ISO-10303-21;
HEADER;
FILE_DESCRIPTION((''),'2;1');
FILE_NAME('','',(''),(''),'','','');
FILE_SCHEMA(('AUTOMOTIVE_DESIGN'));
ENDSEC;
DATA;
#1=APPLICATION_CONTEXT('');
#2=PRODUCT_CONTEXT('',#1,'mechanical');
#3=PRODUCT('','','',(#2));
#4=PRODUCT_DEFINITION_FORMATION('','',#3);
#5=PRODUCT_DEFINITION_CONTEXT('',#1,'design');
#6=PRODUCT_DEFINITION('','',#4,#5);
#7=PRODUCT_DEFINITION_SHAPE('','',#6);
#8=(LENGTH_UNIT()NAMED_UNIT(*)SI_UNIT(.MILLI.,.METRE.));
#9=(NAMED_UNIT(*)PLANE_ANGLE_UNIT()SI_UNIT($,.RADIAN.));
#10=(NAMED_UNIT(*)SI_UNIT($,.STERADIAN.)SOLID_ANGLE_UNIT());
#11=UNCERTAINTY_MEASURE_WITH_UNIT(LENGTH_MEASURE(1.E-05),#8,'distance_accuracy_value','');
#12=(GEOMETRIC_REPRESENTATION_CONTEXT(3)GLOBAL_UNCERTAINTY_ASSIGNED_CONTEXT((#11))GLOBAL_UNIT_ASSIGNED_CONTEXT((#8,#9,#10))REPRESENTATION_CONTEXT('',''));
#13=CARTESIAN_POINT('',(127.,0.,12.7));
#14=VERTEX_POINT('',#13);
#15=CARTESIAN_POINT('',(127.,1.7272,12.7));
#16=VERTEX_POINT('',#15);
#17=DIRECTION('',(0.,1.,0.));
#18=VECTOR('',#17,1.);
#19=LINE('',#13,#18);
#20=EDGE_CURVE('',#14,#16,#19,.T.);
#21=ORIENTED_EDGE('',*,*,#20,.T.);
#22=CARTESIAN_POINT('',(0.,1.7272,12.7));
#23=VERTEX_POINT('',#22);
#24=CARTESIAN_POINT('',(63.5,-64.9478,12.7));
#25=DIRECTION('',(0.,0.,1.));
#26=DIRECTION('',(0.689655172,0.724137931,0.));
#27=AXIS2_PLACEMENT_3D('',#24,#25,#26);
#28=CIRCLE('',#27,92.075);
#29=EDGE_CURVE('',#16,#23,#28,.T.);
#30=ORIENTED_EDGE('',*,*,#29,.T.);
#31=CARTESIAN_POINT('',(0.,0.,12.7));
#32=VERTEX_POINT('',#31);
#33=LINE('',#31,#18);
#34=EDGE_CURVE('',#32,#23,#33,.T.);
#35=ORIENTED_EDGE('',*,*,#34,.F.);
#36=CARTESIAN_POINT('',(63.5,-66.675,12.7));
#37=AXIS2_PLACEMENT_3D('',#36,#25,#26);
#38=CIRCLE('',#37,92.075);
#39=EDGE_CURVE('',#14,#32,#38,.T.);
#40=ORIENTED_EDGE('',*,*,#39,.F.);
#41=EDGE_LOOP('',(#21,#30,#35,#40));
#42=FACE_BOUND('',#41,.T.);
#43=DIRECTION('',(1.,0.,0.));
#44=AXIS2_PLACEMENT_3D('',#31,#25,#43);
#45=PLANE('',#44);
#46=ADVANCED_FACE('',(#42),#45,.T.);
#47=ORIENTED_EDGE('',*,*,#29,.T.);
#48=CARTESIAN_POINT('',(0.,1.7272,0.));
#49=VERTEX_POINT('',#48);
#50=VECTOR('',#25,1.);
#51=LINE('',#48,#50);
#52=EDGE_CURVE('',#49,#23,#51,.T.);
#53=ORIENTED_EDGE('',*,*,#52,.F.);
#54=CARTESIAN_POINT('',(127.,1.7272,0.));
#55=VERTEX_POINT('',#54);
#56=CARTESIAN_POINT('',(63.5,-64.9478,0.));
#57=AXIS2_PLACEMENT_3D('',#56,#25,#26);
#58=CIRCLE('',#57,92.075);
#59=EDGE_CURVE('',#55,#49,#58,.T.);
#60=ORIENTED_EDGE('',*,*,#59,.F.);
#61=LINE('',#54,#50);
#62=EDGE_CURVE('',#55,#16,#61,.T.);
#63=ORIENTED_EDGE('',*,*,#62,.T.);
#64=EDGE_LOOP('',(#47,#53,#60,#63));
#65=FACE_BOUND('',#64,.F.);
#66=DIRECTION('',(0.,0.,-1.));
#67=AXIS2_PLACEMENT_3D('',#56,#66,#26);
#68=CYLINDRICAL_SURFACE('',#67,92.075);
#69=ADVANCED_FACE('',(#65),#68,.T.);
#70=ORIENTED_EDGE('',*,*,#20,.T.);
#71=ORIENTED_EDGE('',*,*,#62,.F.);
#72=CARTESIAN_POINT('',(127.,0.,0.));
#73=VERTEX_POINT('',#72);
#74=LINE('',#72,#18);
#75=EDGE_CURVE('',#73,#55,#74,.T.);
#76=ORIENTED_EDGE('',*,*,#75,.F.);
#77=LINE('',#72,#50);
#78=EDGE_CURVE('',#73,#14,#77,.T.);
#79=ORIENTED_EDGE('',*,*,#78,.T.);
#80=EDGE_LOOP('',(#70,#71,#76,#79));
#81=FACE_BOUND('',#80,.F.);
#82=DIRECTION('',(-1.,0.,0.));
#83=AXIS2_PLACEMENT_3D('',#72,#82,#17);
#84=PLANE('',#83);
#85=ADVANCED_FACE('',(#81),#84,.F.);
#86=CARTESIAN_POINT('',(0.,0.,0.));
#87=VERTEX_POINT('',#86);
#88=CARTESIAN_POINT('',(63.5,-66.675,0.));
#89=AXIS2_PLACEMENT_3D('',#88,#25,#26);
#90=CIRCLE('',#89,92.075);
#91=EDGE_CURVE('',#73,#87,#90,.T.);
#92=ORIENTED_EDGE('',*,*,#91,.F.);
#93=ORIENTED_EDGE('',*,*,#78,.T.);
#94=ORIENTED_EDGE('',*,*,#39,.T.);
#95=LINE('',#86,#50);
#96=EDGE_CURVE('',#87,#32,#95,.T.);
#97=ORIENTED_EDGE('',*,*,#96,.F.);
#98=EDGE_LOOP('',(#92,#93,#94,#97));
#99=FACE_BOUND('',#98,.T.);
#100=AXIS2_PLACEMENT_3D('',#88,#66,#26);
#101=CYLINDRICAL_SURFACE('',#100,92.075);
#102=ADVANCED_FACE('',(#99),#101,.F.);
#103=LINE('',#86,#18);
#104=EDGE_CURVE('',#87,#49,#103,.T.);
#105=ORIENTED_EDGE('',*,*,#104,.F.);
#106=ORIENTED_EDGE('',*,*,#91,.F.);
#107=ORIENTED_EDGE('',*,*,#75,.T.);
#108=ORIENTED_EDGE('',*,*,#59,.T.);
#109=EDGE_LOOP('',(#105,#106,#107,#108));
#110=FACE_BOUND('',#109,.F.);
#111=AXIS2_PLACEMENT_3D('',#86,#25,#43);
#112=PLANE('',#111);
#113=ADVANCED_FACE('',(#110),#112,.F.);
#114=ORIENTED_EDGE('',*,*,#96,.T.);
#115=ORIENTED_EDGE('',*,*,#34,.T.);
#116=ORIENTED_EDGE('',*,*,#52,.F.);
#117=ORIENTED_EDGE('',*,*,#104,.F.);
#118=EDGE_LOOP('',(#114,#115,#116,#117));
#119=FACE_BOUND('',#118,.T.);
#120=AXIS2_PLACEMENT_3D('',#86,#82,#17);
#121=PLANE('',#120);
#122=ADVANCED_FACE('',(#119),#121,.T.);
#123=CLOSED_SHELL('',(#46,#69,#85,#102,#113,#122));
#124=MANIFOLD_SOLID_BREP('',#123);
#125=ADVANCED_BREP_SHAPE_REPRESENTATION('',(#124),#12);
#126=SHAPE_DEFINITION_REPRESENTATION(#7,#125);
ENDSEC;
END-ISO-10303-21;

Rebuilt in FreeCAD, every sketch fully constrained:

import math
import FreeCAD as App
import Part
import Sketcher
Q = App.Units.Quantity

doc = App.newDocument("Part")
params = doc.addObject("Spreadsheet::Sheet", "Params")
for row, (alias, value) in enumerate([
    ("sketch1_height", "0.068 in"),
    ("sketch1_radius", "3.625 in"),
    ("pad1_length", "0.5 in"),
], start=1):
    params.set(f"A{row}", alias)
    params.set(f"B{row}", "=" + value)
    params.setAlias(f"B{row}", alias)

body = doc.addObject("PartDesign::Body", "Body")

# Sketch on XY plane
sketch1 = doc.addObject("Sketcher::SketchObject", "Sketch")
body.addObject(sketch1)
sketch1.AttachmentSupport = (doc.XY_Plane, [""])
sketch1.MapMode = "FlatFace"
sketch1.addGeometry(Part.ArcOfCircle(Part.Circle(App.Vector(63.5, -66.675, 0), App.Vector(0, 0, 1), 92.075), math.radians(46.397181), math.radians(133.602819)), False)
sketch1.addGeometry(Part.LineSegment(App.Vector(127, 0, 0), App.Vector(127, 1.7272, 0)), False)
sketch1.addGeometry(Part.ArcOfCircle(Part.Circle(App.Vector(63.5, -64.9478, 0), App.Vector(0, 0, 1), 92.075), math.radians(46.397181), math.radians(133.602819)), False)
sketch1.addGeometry(Part.LineSegment(App.Vector(0, 1.7272, 0), App.Vector(0, 0, 0)), False)
sketch1.addConstraint(Sketcher.Constraint("Coincident", 0, 1, 1, 1))
sketch1.addConstraint(Sketcher.Constraint("Coincident", 1, 2, 2, 1))
sketch1.addConstraint(Sketcher.Constraint("Coincident", 2, 2, 3, 1))
sketch1.addConstraint(Sketcher.Constraint("Coincident", 3, 2, 0, 2))
sketch1.addConstraint(Sketcher.Constraint("Vertical", 1))
sketch1.addConstraint(Sketcher.Constraint("Vertical", 3))
sketch1.addConstraint(Sketcher.Constraint("Coincident", 3, 2, -1, 1))
sketch1.addConstraint(Sketcher.Constraint("Equal", 0, 2))
sketch1.addConstraint(Sketcher.Constraint("PointOnObject", 0, 1, -1))
sketch1.addConstraint(Sketcher.Constraint("Horizontal", 1, 2, 2, 2))
sketch1.addConstraint(Sketcher.Constraint("DistanceX", -1, 1, 0, 1, Q("5 in")))
sketch1.addConstraint(Sketcher.Constraint("DistanceY", 1, 1, 1, 2, Q("0.068 in")))
sketch1.addConstraint(Sketcher.Constraint("Radius", 0, Q("3.625 in")))
sketch1.setExpression("Constraints[11]", "Params.sketch1_height")
sketch1.setExpression("Constraints[12]", "Params.sketch1_radius")
pad1 = doc.addObject("PartDesign::Pad", "Pad")
body.addObject(pad1)
pad1.Profile = sketch1
pad1.setExpression("Length", "Params.pad1_length")

doc.recompute()
